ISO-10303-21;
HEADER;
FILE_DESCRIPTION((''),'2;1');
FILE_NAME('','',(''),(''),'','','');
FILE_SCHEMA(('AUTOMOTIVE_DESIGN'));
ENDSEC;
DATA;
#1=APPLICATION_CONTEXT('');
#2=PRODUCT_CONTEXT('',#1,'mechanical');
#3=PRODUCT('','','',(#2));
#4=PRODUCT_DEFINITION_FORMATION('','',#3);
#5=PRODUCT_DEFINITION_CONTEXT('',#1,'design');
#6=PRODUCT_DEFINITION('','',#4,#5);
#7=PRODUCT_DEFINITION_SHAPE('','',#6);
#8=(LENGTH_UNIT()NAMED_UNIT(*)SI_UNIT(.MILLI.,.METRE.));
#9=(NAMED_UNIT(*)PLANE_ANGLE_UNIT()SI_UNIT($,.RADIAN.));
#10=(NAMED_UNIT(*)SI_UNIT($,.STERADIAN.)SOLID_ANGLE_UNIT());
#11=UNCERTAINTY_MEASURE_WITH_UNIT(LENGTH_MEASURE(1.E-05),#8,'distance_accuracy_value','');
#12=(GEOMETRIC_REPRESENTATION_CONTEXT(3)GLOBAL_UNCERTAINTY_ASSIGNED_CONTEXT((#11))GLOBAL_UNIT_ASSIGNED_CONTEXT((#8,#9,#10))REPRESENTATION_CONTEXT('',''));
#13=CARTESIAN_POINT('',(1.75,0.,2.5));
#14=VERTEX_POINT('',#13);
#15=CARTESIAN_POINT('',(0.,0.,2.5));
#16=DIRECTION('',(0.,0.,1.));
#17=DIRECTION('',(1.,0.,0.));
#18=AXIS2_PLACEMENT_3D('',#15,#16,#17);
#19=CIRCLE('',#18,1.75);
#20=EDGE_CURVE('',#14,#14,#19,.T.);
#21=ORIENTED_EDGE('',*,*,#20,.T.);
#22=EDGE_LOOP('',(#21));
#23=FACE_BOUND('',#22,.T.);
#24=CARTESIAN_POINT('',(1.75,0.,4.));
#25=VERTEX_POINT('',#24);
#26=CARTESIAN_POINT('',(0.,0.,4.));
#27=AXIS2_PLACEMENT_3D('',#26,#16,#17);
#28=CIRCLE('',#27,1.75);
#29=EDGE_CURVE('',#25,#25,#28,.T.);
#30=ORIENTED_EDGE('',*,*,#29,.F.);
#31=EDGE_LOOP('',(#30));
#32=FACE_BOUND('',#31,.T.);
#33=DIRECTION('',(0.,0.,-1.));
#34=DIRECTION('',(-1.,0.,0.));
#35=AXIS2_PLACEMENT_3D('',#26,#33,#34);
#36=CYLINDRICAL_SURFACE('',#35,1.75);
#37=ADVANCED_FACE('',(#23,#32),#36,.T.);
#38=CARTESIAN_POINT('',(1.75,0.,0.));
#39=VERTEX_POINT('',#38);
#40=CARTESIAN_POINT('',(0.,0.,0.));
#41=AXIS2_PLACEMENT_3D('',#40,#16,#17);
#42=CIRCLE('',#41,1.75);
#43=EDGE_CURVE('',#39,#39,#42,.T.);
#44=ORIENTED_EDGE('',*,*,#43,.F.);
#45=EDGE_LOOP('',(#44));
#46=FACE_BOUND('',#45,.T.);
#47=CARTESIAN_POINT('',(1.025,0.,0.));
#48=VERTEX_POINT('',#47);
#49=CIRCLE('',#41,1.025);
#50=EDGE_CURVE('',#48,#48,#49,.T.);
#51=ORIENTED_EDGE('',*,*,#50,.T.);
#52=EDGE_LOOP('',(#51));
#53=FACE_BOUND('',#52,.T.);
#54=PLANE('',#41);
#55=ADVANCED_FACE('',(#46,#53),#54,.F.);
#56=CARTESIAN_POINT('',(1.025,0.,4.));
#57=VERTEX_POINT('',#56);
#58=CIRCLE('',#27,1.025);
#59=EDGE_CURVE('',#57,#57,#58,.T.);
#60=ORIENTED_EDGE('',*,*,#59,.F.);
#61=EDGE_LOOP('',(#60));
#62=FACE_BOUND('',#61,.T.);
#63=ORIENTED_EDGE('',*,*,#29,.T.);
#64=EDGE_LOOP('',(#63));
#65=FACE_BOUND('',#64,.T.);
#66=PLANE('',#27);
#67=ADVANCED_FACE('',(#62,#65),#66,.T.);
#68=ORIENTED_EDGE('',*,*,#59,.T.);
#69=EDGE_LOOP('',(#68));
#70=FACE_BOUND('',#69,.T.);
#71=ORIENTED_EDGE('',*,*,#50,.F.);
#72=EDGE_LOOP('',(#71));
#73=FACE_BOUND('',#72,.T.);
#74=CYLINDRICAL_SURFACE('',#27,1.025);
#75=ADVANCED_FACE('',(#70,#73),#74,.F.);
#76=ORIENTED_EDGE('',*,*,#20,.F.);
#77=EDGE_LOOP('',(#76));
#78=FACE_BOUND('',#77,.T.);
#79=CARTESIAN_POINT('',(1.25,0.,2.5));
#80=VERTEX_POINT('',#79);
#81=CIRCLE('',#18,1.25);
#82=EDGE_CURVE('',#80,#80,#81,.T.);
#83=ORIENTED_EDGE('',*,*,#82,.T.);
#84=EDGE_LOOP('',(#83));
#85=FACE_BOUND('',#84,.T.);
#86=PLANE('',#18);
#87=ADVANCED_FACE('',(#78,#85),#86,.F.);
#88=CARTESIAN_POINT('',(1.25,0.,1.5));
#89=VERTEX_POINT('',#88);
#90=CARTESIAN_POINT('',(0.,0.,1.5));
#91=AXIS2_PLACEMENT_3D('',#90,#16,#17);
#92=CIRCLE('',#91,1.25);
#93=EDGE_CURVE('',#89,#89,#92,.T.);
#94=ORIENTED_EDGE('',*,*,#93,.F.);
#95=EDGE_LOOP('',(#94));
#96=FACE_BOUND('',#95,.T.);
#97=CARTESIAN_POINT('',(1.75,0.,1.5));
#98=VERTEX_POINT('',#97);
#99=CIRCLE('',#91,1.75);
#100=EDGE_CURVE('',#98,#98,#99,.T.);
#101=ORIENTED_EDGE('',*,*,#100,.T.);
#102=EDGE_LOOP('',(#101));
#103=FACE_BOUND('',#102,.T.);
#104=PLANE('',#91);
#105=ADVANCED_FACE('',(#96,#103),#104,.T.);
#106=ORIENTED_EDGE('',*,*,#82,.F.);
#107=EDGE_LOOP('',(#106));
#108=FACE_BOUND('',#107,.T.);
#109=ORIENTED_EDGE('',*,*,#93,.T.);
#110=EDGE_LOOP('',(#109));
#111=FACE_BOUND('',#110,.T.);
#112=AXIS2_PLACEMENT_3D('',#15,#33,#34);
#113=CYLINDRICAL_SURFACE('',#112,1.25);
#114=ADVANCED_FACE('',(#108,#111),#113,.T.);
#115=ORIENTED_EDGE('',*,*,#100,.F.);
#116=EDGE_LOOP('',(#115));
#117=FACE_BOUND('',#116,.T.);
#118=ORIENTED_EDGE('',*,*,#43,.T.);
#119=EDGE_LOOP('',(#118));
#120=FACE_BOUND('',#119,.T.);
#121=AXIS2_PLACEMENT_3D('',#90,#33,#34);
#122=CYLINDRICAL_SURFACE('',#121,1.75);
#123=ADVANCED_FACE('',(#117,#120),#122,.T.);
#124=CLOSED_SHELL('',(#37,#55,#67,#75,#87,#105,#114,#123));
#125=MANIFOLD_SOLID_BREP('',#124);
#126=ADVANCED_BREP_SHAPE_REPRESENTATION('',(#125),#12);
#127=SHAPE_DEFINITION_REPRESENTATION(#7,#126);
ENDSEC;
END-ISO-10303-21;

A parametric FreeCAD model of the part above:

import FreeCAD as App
import Part
import Sketcher

doc = App.newDocument("Part")
body = doc.addObject("PartDesign::Body", "Body")

sketch1 = doc.addObject("Sketcher::SketchObject", "Sketch")
body.addObject(sketch1)
sketch1.AttachmentSupport = (doc.XY_Plane, [""])
sketch1.MapMode = "FlatFace"
sketch1.addGeometry(Part.Circle(App.Vector(0, 0, 0), App.Vector(0, 0, 1), 1.8), False)
sketch1.addConstraint([
    Sketcher.Constraint("Coincident", 0, 3, -1, 1),
    Sketcher.Constraint("Diameter", 0, 3.5),
])
pad1 = doc.addObject("PartDesign::Pad", "Pad")
body.addObject(pad1)
pad1.Profile = sketch1
pad1.Length = 1.5

sketch2 = doc.addObject("Sketcher::SketchObject", "Sketch001")
body.addObject(sketch2)
sketch2.AttachmentSupport = (doc.XY_Plane, [""])
sketch2.MapMode = "FlatFace"
sketch2.AttachmentOffset = App.Placement(App.Vector(0, 0, 1.5), App.Rotation())
sketch2.addGeometry(Part.Circle(App.Vector(0, 0, 0), App.Vector(0, 0, 1), 1.2), False)
sketch2.addConstraint([
    Sketcher.Constraint("Coincident", 0, 3, -1, 1),
    Sketcher.Constraint("Diameter", 0, 2.5),
])
pad2 = doc.addObject("PartDesign::Pad", "Pad001")
body.addObject(pad2)
pad2.Profile = sketch2
pad2.Length = 1

sketch3 = doc.addObject("Sketcher::SketchObject", "Sketch002")
body.addObject(sketch3)
sketch3.AttachmentSupport = (doc.XY_Plane, [""])
sketch3.MapMode = "FlatFace"
sketch3.AttachmentOffset = App.Placement(App.Vector(0, 0, 2.5), App.Rotation())
sketch3.addGeometry(Part.Circle(App.Vector(0, 0, 0), App.Vector(0, 0, 1), 1.8), False)
sketch3.addConstraint([
    Sketcher.Constraint("Coincident", 0, 3, -1, 1),
    Sketcher.Constraint("Diameter", 0, 3.5),
])
pad3 = doc.addObject("PartDesign::Pad", "Pad002")
body.addObject(pad3)
pad3.Profile = sketch3
pad3.Length = 1.5

sketch4 = doc.addObject("Sketcher::SketchObject", "Sketch003")
body.addObject(sketch4)
sketch4.AttachmentSupport = (doc.XY_Plane, [""])
sketch4.MapMode = "FlatFace"
sketch4.AttachmentOffset = App.Placement(App.Vector(0, 0, 4), App.Rotation())
sketch4.addGeometry(Part.Circle(App.Vector(0, 0, 0), App.Vector(0, 0, 1), 1), False)
sketch4.addConstraint([
    Sketcher.Constraint("Coincident", 0, 3, -1, 1),
    Sketcher.Constraint("Diameter", 0, 2.05),
])
doc.recompute()
hole = doc.addObject("PartDesign::Hole", "Hole")
body.addObject(hole)
hole.Profile = sketch4
hole.ThreadType = "None"
hole.Diameter = 2.05
hole.DepthType = "ThroughAll"

doc.recompute()
